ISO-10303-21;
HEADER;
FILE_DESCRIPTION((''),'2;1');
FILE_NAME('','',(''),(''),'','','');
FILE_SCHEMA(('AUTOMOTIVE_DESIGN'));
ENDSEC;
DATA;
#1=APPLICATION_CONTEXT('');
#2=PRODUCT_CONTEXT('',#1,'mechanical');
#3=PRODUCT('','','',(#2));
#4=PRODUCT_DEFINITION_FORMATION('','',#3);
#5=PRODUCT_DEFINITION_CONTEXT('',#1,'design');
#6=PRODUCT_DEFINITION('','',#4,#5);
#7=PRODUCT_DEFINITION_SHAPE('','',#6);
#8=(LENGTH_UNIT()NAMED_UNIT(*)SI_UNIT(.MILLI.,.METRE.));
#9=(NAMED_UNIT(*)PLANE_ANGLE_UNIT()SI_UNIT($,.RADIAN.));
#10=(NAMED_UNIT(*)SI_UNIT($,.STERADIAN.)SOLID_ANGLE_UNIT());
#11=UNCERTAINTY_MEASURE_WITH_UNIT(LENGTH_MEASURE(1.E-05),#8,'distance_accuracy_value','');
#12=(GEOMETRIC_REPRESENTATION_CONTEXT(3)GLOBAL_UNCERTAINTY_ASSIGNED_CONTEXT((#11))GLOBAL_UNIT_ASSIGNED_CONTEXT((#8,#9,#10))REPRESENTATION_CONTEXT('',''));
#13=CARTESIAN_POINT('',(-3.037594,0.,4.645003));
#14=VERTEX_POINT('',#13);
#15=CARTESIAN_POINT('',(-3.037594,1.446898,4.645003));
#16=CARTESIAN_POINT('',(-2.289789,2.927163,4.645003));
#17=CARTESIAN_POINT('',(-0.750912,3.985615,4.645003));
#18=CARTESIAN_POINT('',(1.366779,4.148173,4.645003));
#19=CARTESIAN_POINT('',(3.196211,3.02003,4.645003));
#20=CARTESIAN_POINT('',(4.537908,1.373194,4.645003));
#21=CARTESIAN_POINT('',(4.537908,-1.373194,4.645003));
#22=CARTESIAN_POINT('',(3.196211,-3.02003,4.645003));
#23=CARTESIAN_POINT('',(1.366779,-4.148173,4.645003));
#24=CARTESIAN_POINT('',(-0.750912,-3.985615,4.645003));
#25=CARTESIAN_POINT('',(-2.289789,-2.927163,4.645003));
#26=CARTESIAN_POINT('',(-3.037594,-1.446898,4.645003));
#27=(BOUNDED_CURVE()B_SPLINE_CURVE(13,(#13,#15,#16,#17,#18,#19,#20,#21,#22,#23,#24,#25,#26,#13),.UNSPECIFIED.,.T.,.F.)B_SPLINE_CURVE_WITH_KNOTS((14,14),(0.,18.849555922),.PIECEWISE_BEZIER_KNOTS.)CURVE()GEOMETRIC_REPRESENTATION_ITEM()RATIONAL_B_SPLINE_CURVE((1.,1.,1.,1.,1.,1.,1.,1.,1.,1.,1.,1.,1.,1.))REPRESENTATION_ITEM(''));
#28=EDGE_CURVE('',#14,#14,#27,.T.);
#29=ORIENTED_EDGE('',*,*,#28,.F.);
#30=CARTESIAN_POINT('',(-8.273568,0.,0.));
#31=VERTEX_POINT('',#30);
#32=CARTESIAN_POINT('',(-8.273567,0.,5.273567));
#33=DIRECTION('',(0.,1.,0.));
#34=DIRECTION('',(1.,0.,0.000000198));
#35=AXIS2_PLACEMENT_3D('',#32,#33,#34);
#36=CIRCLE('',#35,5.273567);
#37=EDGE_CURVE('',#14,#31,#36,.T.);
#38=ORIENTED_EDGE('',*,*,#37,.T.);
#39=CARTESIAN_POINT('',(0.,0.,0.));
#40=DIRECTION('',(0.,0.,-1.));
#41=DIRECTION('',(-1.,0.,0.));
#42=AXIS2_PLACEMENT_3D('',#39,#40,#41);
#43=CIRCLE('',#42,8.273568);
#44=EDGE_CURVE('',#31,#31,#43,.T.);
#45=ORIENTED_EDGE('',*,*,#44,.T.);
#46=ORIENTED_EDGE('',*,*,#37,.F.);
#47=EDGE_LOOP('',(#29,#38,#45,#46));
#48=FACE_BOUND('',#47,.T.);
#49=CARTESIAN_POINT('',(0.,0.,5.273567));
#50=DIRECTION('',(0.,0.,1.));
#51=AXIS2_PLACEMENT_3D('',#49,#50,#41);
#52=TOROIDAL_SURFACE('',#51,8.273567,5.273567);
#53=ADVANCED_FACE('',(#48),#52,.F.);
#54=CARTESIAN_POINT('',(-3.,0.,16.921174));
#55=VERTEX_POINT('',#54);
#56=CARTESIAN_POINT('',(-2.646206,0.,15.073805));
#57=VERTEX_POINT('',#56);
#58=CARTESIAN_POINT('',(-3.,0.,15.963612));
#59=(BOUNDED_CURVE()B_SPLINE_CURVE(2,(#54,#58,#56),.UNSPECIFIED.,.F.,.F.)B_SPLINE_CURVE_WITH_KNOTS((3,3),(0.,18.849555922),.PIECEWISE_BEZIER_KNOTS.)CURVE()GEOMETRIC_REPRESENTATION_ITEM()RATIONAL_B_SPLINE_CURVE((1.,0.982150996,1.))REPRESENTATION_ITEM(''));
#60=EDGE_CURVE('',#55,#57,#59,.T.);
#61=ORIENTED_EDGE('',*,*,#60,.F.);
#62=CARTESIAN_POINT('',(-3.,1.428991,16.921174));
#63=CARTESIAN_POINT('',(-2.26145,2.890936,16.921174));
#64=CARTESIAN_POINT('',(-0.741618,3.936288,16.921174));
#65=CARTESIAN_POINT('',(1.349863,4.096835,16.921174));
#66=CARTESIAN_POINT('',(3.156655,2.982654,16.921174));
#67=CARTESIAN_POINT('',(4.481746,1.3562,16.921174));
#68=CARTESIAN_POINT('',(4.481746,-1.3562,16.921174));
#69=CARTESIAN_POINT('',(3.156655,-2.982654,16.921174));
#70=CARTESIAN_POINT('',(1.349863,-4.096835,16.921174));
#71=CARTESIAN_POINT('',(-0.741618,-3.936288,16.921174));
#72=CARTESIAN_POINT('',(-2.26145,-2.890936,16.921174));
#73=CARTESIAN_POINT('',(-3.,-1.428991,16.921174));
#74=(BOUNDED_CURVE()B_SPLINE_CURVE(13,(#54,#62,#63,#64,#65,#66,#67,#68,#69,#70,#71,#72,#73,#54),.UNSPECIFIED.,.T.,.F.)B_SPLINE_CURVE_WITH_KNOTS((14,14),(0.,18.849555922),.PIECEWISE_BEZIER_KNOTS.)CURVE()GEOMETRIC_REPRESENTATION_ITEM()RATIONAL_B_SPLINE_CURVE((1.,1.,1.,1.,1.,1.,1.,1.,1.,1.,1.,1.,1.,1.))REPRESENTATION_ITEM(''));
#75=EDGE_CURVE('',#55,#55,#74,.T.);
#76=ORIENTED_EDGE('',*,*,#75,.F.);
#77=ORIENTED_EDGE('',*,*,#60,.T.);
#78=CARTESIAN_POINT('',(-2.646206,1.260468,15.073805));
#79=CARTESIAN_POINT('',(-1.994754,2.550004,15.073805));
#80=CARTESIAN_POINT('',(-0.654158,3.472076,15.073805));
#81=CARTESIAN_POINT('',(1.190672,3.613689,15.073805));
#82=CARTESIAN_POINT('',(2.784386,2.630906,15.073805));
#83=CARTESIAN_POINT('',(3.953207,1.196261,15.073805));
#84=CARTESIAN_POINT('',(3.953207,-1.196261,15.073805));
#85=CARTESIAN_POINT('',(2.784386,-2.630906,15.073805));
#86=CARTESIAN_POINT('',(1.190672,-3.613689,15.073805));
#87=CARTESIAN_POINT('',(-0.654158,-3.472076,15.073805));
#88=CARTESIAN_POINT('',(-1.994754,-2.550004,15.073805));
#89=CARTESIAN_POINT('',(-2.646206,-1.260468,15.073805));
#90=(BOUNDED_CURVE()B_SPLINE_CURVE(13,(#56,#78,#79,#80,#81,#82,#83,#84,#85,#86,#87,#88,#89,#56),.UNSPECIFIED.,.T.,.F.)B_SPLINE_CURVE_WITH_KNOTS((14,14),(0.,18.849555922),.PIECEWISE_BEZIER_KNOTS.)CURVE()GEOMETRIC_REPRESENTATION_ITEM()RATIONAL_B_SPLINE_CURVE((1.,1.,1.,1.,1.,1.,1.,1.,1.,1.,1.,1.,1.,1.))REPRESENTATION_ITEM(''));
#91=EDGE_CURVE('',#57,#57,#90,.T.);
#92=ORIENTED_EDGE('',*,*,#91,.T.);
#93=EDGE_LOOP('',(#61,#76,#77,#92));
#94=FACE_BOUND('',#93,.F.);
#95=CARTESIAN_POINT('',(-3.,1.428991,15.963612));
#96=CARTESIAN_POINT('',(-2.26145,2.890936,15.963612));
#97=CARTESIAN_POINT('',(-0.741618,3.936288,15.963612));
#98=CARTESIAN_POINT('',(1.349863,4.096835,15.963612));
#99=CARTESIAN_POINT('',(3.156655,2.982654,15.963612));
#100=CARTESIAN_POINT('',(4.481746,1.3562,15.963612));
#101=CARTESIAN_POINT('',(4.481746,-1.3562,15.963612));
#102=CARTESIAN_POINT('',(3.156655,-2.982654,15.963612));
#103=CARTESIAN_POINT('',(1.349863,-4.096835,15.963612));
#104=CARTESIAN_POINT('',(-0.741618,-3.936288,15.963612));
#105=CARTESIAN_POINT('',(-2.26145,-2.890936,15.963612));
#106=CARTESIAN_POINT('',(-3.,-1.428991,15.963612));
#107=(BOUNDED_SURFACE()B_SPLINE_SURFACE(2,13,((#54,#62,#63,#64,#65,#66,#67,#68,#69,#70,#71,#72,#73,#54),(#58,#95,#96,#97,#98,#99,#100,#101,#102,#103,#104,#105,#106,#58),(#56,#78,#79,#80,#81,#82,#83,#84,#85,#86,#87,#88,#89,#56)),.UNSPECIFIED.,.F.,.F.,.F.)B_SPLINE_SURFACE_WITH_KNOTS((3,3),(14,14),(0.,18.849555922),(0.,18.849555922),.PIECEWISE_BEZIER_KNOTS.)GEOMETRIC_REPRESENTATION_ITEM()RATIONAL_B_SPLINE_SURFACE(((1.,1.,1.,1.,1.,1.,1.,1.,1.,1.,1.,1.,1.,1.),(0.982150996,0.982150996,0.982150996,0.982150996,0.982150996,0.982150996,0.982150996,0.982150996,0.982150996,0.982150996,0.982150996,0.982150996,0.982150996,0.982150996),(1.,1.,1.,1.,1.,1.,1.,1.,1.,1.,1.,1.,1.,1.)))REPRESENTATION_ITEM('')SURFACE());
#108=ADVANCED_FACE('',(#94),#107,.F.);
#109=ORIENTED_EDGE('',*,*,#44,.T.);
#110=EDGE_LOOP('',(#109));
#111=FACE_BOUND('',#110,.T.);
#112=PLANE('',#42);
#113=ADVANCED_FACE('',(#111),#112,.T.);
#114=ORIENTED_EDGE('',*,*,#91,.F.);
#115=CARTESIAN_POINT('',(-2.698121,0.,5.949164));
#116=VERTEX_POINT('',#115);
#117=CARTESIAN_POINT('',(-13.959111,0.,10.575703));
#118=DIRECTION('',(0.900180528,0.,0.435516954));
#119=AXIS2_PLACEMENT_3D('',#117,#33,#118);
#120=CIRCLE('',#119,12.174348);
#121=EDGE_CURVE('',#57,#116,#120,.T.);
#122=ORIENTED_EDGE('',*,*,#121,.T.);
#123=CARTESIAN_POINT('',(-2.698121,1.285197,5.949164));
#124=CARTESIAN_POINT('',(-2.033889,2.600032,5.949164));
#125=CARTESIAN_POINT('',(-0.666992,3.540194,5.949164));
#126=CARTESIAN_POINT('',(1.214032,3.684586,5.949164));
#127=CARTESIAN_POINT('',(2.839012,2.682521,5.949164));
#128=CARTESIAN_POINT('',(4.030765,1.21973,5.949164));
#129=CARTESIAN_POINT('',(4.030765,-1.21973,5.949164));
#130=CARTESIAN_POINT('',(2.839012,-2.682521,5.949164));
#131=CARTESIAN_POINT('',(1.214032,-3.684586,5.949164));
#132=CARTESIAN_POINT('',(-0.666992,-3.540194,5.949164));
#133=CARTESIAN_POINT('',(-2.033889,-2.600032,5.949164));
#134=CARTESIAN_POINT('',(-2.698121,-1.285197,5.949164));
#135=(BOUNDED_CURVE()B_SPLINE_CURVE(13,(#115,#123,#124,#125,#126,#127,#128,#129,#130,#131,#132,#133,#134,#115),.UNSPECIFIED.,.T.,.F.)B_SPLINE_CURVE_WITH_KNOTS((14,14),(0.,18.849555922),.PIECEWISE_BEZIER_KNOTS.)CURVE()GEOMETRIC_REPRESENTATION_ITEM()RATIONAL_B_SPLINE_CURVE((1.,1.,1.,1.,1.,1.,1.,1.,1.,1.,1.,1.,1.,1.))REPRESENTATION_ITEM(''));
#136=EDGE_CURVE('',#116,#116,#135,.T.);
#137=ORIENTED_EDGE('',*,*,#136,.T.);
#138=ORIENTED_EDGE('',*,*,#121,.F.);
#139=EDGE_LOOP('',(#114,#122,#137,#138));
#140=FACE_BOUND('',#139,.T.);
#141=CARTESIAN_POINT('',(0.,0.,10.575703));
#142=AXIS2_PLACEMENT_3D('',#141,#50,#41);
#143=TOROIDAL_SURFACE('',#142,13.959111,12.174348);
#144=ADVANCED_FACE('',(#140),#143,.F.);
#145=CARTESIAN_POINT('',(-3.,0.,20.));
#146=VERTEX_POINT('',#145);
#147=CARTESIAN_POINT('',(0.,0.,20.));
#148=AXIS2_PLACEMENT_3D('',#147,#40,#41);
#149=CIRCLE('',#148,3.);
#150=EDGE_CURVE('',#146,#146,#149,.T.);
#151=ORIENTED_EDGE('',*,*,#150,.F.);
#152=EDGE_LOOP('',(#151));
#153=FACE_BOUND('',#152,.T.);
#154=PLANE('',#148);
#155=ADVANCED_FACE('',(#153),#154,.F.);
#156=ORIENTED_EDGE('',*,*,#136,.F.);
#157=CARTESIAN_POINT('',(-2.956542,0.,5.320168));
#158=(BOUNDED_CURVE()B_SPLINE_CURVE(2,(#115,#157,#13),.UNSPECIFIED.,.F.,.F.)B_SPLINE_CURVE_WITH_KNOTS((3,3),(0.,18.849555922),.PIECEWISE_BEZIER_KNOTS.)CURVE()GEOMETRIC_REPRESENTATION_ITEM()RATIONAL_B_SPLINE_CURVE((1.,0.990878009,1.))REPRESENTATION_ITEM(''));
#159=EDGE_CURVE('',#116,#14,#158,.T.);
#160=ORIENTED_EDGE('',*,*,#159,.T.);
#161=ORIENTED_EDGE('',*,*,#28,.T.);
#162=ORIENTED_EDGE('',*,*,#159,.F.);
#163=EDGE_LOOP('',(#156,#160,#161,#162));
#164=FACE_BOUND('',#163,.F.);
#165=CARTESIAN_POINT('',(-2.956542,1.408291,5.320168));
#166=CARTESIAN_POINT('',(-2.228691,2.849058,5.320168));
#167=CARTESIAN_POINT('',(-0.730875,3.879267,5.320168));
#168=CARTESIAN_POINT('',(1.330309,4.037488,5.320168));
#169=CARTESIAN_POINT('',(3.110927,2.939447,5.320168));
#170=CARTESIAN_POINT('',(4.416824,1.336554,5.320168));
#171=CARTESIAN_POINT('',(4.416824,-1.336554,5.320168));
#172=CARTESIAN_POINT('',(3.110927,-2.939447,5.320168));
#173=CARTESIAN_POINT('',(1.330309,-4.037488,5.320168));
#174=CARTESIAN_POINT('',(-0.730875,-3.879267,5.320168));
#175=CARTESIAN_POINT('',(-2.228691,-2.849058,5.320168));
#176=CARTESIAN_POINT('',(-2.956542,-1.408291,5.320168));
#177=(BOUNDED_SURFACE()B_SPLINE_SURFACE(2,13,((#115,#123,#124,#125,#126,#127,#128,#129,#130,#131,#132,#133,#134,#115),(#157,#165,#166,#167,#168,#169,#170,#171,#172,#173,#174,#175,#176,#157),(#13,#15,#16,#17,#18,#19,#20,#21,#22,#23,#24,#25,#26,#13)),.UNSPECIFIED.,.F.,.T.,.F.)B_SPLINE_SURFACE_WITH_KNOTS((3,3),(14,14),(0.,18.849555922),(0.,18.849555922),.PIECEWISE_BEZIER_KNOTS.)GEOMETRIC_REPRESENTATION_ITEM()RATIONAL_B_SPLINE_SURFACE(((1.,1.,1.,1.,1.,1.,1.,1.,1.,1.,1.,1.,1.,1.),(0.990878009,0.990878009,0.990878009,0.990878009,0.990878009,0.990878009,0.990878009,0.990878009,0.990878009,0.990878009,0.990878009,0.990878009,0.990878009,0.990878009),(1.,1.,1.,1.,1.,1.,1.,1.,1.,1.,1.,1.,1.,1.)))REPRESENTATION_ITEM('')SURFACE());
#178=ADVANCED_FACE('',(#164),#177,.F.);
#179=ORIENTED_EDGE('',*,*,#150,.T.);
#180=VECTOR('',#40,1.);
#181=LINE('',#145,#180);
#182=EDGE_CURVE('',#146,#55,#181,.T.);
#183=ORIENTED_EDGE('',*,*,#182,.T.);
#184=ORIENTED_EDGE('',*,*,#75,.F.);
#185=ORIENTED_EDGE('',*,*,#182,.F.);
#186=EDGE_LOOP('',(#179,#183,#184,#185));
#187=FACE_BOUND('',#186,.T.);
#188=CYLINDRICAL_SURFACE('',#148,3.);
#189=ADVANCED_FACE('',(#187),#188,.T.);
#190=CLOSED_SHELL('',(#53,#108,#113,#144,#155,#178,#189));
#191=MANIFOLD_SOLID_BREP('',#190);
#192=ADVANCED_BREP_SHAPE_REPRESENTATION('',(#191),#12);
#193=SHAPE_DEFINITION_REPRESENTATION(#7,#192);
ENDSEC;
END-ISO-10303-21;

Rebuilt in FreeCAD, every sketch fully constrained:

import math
import FreeCAD as App
import Part
import Sketcher
from FreeCAD import Vector


def edges_at(feature, points):
    """Names of the edges that pass closest to the given points."""
    edges = feature.Shape.Edges
    near = lambda p: min(range(len(edges)), key=lambda i: edges[i].distToShape(Part.Vertex(*p))[0])
    return sorted({f"Edge{near(p) + 1}" for p in points})

doc = App.newDocument("Part")
body = doc.addObject("PartDesign::Body", "Body")

sketch1 = doc.addObject("Sketcher::SketchObject", "Sketch")
body.addObject(sketch1)
sketch1.AttachmentSupport = (doc.XZ_Plane, [""])
sketch1.MapMode = "FlatFace"
sketch1.addGeometry([
    Part.LineSegment(Vector(0, 0, 0), Vector(0, 20, 0)),
    Part.LineSegment(Vector(0, 20, 0), Vector(-3, 20, 0)),
    Part.LineSegment(Vector(-3, 20, 0), Vector(-3, 15.9, 0)),
    Part.ArcOfCircle(Part.Circle(Vector(-14, 10.6, 0), Vector(0, 0, 1), 12.2), math.radians(-26), math.radians(26)),
    Part.ArcOfCircle(Part.Circle(Vector(-8.3, 5.3, 0), Vector(0, 0, 1), 5.3), math.radians(-90), math.radians(0)),
    Part.LineSegment(Vector(-8.3, 0, 0), Vector(0, 0, 0)),
], False)
sketch1.addConstraint([
    Sketcher.Constraint("Coincident", 0, 2, 1, 1),
    Sketcher.Constraint("Coincident", 1, 2, 2, 1),
    Sketcher.Constraint("Coincident", 2, 2, 3, 2),
    Sketcher.Constraint("Coincident", 3, 1, 4, 2),
    Sketcher.Constraint("Tangent", 4, 1, 5, 1),
    Sketcher.Constraint("Coincident", 5, 2, 0, 1),
    Sketcher.Constraint("Vertical", 0),
    Sketcher.Constraint("Horizontal", 1),
    Sketcher.Constraint("Vertical", 2),
    Sketcher.Constraint("Horizontal", 5),
    Sketcher.Constraint("Coincident", 5, 2, -1, 1),
    Sketcher.Constraint("Horizontal", 4, 3, 3, 1),
    Sketcher.Constraint("Vertical", 2, 2, 3, 1),
    Sketcher.Constraint("DistanceX", 1, 2, 1, 1, 3.0),
    Sketcher.Constraint("DistanceY", 0, 1, 0, 2, 20.0),
    Sketcher.Constraint("Radius", 3, 12.174348),
    Sketcher.Constraint("Radius", 4, 5.273567),
    Sketcher.Constraint("DistanceY", 2, 2, 2, 1, 4.122162),
])
revolution = doc.addObject("PartDesign::Revolution", "Revolution")
body.addObject(revolution)
revolution.Profile = sketch1
revolution.ReferenceAxis = (sketch1, ["V_Axis"])
revolution.Angle = 360
doc.recompute()

fillet = doc.addObject("PartDesign::Fillet", "Fillet")
body.addObject(fillet)
fillet.Base = (revolution, edges_at(revolution, [(3, 0, 15.878), (3, 0, 5.274)]))
fillet.Radius = 5

doc.recompute()
